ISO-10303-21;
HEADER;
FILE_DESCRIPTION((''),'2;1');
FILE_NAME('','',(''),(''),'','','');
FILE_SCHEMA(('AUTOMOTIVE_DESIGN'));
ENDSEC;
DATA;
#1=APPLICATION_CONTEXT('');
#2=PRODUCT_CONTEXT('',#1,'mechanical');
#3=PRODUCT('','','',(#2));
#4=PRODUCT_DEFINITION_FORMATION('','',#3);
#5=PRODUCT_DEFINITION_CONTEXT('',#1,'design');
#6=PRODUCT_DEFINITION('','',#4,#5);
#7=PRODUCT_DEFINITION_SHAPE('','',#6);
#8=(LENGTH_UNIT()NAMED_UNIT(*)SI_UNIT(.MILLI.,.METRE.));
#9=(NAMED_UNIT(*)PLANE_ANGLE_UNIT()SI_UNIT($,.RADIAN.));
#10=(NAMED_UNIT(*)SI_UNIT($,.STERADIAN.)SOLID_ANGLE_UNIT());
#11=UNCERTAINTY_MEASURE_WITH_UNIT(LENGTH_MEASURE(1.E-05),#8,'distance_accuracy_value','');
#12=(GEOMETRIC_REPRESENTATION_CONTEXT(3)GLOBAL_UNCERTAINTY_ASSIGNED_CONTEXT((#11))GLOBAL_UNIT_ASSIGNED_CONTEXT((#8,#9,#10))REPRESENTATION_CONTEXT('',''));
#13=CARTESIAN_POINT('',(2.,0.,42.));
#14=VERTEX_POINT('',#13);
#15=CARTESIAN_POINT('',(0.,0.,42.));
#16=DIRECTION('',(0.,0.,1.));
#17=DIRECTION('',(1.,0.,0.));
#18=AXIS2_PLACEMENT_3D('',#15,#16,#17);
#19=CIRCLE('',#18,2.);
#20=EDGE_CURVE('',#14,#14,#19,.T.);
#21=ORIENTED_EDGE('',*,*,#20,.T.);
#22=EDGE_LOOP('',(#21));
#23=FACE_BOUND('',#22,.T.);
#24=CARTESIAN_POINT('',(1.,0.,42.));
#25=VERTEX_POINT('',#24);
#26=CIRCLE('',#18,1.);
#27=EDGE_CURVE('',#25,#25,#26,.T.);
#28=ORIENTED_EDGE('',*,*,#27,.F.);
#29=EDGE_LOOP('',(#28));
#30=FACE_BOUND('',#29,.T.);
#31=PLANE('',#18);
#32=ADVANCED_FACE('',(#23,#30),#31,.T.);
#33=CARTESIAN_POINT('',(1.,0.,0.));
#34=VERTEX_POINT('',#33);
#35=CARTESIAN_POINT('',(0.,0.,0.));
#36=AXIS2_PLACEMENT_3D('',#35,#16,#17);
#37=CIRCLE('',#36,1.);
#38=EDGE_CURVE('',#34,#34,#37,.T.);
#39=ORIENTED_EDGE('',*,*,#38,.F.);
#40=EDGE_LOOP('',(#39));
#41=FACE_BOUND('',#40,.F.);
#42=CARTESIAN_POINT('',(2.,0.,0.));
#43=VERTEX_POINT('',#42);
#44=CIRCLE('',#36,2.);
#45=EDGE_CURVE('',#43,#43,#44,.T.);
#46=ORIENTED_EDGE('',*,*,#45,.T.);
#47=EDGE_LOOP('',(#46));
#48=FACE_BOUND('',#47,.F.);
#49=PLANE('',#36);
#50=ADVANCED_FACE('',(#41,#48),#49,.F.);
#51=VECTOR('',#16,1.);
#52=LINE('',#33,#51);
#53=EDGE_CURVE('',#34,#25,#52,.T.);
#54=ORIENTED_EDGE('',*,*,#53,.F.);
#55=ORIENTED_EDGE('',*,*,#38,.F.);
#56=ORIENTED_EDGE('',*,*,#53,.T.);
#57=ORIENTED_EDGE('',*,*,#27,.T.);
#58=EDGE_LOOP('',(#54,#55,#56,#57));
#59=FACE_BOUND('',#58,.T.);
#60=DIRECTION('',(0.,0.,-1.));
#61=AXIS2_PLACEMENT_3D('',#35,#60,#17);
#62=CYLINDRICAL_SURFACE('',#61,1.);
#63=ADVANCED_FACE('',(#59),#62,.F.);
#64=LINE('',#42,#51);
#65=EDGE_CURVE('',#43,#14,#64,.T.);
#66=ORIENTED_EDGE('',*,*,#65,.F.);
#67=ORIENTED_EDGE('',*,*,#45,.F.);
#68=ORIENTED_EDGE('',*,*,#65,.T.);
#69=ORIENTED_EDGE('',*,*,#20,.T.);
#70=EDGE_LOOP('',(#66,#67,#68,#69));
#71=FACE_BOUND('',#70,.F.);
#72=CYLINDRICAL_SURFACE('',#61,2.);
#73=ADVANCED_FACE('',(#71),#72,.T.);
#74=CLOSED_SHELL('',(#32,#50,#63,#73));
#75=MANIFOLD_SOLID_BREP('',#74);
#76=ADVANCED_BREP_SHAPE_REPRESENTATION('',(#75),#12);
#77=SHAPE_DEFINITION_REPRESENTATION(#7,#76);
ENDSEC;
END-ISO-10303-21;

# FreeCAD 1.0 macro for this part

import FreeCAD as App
import Part
import Sketcher
from FreeCAD import Vector

doc = App.newDocument("Part")
body = doc.addObject("PartDesign::Body", "Body")

# Sketch on XY plane
sketch1 = body.newObject("Sketcher::SketchObject", "Sketch")
sketch1.AttachmentSupport = (doc.getObject("XY_Plane"), [""])
sketch1.MapMode = "FlatFace"
sketch1.addGeometry([
    Part.Circle(Vector(0, 0, 0), Vector(0, 0, 1), 2),
    Part.Circle(Vector(0, 0, 0), Vector(0, 0, 1), 1),
], False)
sketch1.addConstraint([
    Sketcher.Constraint("Coincident", 0, 3, -1, 1),
    Sketcher.Constraint("Coincident", 1, 3, -1, 1),
    Sketcher.Constraint("Diameter", 0, 4.0),
    Sketcher.Constraint("Diameter", 1, 2.0),
])
pad1 = body.newObject("PartDesign::Pad", "Pad")
pad1.Profile = sketch1
pad1.Length = 42

doc.recompute()
